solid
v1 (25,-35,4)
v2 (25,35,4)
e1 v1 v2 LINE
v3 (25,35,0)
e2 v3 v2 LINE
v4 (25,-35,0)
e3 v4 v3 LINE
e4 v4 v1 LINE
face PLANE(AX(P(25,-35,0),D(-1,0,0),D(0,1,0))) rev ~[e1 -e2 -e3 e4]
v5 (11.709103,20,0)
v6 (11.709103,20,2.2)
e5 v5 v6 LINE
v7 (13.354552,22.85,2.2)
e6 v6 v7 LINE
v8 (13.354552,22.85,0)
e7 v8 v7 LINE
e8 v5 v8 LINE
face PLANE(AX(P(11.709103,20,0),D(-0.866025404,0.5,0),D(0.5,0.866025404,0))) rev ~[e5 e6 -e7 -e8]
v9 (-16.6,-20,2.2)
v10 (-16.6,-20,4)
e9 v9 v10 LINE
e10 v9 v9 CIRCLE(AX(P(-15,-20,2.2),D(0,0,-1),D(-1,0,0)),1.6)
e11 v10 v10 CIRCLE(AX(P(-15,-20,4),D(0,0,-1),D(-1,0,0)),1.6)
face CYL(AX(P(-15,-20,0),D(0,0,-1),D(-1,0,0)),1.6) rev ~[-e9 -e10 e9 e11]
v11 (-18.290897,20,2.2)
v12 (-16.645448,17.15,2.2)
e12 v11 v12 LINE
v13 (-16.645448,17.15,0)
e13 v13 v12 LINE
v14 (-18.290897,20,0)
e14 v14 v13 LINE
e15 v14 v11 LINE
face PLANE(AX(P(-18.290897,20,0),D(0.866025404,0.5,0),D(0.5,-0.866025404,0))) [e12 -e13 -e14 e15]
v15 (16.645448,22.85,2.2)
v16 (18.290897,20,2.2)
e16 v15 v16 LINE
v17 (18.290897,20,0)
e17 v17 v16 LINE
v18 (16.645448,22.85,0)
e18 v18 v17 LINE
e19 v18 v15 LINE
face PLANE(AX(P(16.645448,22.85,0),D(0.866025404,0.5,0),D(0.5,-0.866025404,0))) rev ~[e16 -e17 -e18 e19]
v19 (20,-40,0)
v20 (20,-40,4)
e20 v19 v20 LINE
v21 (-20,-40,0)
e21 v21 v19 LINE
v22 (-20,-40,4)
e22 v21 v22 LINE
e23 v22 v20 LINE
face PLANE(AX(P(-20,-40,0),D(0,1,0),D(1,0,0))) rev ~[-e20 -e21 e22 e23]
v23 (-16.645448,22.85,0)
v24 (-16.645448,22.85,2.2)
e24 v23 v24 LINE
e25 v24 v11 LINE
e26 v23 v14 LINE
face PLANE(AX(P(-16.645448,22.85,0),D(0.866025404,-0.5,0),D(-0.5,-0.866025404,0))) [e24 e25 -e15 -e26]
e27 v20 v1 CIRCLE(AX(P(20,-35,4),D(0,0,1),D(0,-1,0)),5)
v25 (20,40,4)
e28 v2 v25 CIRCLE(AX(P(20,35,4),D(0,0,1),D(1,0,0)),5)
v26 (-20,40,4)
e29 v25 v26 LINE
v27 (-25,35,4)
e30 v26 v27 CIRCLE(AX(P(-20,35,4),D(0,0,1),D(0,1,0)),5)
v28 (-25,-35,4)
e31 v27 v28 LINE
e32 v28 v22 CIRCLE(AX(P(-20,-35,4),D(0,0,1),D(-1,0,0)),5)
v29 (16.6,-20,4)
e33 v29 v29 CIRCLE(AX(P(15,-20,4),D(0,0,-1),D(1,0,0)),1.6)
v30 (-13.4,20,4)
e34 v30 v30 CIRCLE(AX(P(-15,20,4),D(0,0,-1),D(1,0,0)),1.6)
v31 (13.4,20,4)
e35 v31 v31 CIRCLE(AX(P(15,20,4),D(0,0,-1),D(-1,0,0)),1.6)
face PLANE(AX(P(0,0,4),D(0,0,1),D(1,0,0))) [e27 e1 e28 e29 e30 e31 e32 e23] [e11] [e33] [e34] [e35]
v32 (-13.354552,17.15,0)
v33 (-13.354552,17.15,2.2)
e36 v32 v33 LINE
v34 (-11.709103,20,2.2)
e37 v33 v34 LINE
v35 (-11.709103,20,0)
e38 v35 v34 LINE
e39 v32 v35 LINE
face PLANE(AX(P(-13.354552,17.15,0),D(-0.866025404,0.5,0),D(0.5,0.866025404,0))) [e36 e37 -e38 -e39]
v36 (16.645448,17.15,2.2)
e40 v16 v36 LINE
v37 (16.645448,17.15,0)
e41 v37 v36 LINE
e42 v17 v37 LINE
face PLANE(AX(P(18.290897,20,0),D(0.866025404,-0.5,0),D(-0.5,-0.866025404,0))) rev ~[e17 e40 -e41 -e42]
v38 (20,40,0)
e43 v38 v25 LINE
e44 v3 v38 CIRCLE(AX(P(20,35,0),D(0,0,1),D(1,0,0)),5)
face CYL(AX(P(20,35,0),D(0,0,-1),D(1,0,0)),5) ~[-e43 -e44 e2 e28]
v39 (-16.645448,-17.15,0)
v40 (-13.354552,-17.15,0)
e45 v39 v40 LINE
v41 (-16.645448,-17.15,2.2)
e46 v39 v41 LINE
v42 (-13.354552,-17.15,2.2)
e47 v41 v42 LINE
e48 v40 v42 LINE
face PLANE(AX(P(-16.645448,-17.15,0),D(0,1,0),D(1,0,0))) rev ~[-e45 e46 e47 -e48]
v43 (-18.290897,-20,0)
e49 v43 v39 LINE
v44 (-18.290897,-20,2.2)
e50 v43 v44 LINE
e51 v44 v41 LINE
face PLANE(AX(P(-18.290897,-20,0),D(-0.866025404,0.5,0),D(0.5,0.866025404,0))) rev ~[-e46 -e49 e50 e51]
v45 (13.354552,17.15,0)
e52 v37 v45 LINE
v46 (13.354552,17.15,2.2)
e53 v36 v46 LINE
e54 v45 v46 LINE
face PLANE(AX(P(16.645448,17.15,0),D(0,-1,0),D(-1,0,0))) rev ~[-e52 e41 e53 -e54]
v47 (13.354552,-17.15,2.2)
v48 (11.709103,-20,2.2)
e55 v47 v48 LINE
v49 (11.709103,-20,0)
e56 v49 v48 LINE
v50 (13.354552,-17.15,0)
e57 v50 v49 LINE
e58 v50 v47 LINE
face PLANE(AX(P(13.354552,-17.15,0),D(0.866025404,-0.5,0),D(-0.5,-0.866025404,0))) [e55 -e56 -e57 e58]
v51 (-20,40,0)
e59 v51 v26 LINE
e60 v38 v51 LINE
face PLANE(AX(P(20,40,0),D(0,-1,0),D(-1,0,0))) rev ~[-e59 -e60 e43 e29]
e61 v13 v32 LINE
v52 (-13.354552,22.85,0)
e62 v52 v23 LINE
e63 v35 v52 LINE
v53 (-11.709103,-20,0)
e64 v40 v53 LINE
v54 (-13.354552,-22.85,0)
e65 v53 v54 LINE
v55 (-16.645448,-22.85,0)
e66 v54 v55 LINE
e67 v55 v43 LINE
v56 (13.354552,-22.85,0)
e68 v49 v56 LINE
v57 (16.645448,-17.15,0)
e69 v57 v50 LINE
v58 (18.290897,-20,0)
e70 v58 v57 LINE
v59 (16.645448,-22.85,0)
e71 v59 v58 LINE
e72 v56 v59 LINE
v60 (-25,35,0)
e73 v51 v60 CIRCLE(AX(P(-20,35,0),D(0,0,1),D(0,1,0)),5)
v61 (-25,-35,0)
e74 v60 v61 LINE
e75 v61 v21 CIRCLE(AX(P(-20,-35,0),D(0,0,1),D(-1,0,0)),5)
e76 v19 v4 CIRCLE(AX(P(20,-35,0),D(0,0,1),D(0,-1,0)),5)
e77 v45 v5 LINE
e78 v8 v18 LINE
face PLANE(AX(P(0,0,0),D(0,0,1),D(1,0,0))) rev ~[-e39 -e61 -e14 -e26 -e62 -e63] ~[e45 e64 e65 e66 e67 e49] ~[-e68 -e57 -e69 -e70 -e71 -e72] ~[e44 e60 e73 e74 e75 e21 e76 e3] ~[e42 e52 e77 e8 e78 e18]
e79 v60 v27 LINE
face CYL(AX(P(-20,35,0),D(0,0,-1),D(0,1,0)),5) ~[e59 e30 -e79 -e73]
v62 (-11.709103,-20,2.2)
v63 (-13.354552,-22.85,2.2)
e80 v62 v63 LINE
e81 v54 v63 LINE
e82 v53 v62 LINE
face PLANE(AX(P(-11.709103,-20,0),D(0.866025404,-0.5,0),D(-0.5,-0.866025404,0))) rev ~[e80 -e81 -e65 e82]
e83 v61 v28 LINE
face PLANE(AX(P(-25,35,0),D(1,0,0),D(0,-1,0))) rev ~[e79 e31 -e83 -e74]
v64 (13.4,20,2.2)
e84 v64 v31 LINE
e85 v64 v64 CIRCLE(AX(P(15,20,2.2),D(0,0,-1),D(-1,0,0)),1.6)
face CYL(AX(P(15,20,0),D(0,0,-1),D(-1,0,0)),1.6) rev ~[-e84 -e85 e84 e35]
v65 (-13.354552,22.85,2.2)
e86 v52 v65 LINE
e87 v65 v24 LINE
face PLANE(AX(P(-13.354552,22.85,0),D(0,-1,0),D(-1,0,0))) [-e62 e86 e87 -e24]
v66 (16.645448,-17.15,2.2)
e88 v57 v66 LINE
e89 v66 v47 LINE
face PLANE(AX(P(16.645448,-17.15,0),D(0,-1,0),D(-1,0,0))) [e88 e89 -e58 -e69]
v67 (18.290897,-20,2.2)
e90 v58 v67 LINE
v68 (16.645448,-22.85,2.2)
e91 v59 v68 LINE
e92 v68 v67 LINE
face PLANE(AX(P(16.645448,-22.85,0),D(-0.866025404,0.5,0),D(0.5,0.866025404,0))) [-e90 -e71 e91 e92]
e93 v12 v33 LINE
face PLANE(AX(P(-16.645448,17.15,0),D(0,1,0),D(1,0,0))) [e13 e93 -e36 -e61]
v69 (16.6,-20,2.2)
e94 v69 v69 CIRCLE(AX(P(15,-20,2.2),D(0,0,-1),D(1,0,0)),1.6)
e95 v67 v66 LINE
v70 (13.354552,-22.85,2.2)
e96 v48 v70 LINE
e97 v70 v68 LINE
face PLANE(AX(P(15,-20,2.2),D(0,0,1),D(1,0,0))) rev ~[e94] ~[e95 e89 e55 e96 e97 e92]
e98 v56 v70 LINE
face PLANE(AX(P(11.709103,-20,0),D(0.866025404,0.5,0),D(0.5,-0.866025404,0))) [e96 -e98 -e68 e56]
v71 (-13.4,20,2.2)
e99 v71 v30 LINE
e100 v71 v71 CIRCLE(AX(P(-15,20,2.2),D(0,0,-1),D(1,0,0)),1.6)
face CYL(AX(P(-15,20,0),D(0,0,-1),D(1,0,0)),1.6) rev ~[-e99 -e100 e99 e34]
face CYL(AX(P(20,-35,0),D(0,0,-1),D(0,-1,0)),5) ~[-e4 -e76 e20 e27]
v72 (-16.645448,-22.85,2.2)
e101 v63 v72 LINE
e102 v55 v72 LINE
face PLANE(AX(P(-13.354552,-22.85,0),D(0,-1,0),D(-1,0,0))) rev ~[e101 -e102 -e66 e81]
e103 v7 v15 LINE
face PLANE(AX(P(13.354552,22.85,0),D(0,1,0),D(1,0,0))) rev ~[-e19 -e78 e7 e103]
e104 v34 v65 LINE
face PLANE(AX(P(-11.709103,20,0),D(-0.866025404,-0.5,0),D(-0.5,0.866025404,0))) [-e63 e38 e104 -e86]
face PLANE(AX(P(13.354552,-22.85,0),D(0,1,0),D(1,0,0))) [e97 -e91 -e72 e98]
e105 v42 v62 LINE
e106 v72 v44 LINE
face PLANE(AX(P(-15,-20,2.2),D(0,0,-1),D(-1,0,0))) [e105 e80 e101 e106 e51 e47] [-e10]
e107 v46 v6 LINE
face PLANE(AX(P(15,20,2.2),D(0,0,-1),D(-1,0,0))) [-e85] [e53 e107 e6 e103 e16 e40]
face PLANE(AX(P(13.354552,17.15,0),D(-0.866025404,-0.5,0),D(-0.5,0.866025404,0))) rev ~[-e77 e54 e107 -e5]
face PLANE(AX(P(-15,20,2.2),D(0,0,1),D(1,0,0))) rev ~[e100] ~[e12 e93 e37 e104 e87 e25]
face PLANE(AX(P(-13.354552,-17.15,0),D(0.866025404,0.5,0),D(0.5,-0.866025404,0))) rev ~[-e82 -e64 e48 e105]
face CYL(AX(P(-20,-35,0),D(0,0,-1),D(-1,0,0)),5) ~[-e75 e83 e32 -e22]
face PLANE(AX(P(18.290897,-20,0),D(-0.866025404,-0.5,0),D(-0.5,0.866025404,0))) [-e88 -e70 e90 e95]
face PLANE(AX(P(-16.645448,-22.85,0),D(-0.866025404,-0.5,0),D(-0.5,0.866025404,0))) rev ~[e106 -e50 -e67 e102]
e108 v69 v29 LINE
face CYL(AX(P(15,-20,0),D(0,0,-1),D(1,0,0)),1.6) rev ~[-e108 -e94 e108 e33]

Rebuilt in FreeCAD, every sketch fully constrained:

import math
import FreeCAD as App
import Part
import Sketcher
Q = App.Units.Quantity

doc = App.newDocument("Part")
params = doc.addObject("Spreadsheet::Sheet", "Params")
for row, (alias, value) in enumerate([
    ("sketch1_radius", "5 mm"),
    ("sketch1_width", "40 mm"),
    ("sketch1_height", "70 mm"),
    ("pad1_length", "4 mm"),
    ("sketch2_diameter", "3.2 mm"),
    ("sketch3_diameter", "3.2 mm"),
    ("sketch4_diameter", "3.2 mm"),
    ("sketch5_diameter", "3.2 mm"),
    ("sketch6_diameter", "3.2 mm"),
    ("pocket5_length", "2.2 mm"),
], start=1):
    params.set(f"A{row}", alias)
    params.set(f"B{row}", "=" + value)
    params.setAlias(f"B{row}", alias)

body = doc.addObject("PartDesign::Body", "Body")

# Sketch on XY plane
sketch1 = doc.addObject("Sketcher::SketchObject", "Sketch")
body.addObject(sketch1)
sketch1.AttachmentSupport = (doc.XY_Plane, [""])
sketch1.MapMode = "FlatFace"
sketch1.addGeometry([
    Part.LineSegment(App.Vector(-20, -40, 0), App.Vector(20, -40, 0)),  # 0
    Part.ArcOfCircle(Part.Circle(App.Vector(20, -35, 0), App.Vector(0, 0, 1), 5), math.radians(-90), math.radians(0)),  # 1
    Part.LineSegment(App.Vector(25, -35, 0), App.Vector(25, 35, 0)),  # 2
    Part.ArcOfCircle(Part.Circle(App.Vector(20, 35, 0), App.Vector(0, 0, 1), 5), math.radians(0), math.radians(90)),  # 3
    Part.LineSegment(App.Vector(20, 40, 0), App.Vector(-20, 40, 0)),  # 4
    Part.ArcOfCircle(Part.Circle(App.Vector(-20, 35, 0), App.Vector(0, 0, 1), 5), math.radians(90), math.radians(180)),  # 5
    Part.LineSegment(App.Vector(-25, 35, 0), App.Vector(-25, -35, 0)),  # 6
    Part.ArcOfCircle(Part.Circle(App.Vector(-20, -35, 0), App.Vector(0, 0, 1), 5), math.radians(180), math.radians(270)),  # 7
], False)
sketch1.addConstraint([
    Sketcher.Constraint("Tangent", 0, 2, 1, 1),
    Sketcher.Constraint("Tangent", 1, 2, 2, 1),
    Sketcher.Constraint("Tangent", 2, 2, 3, 1),
    Sketcher.Constraint("Tangent", 3, 2, 4, 1),
    Sketcher.Constraint("Tangent", 4, 2, 5, 1),
    Sketcher.Constraint("Tangent", 5, 2, 6, 1),
    Sketcher.Constraint("Tangent", 6, 2, 7, 1),
    Sketcher.Constraint("Tangent", 7, 2, 0, 1),
    Sketcher.Constraint("Horizontal", 0),
    Sketcher.Constraint("Vertical", 2),
    Sketcher.Constraint("Horizontal", 4),
    Sketcher.Constraint("Vertical", 6),
    Sketcher.Constraint("Equal", 1, 3),
    Sketcher.Constraint("Equal", 3, 5),
    Sketcher.Constraint("Equal", 5, 7),
    Sketcher.Constraint("Symmetric", 1, 3, 5, 3, -1, 1),
    Sketcher.Constraint("Radius", 1, 5.0),
    Sketcher.Constraint("DistanceX", 0, 1, 0, 2, 40.0),
    Sketcher.Constraint("DistanceY", 2, 1, 2, 2, 70.0),
])
sketch1.setExpression("Constraints[16]", "Params.sketch1_radius")
sketch1.setExpression("Constraints[17]", "Params.sketch1_width")
sketch1.setExpression("Constraints[18]", "Params.sketch1_height")
pad1 = doc.addObject("PartDesign::Pad", "Pad")
body.addObject(pad1)
pad1.Profile = sketch1
pad1.setExpression("Length", "Params.pad1_length")

# Sketch on XY plane
sketch2 = doc.addObject("Sketcher::SketchObject", "Sketch001")
body.addObject(sketch2)
sketch2.AttachmentSupport = (doc.XY_Plane, [""])
sketch2.MapMode = "FlatFace"
sketch2.addGeometry(Part.Circle(App.Vector(15, 20, 0), App.Vector(0, 0, 1), 1.6), False)
sketch2.addConstraint([
    Sketcher.Constraint("Diameter", 0, 3.2),
    Sketcher.Constraint("DistanceX", -1, 1, 0, 3, 15.0),
    Sketcher.Constraint("DistanceY", -1, 1, 0, 3, 20.0),
])
sketch2.setExpression("Constraints[0]", "Params.sketch2_diameter")
pocket1 = doc.addObject("PartDesign::Pocket", "Pocket")
body.addObject(pocket1)
pocket1.Profile = sketch2
pocket1.Type = "UpToFirst"
pocket1.Reversed = True

# Sketch on XY plane
sketch3 = doc.addObject("Sketcher::SketchObject", "Sketch002")
body.addObject(sketch3)
sketch3.AttachmentSupport = (doc.XY_Plane, [""])
sketch3.MapMode = "FlatFace"
sketch3.addGeometry(Part.Circle(App.Vector(-15, 20, 0), App.Vector(0, 0, 1), 1.6), False)
sketch3.addConstraint([
    Sketcher.Constraint("Diameter", 0, 3.2),
    Sketcher.Constraint("DistanceX", 0, 3, -1, 1, 15.0),
    Sketcher.Constraint("DistanceY", -1, 1, 0, 3, 20.0),
])
sketch3.setExpression("Constraints[0]", "Params.sketch3_diameter")
pocket2 = doc.addObject("PartDesign::Pocket", "Pocket001")
body.addObject(pocket2)
pocket2.Profile = sketch3
pocket2.Type = "UpToFirst"
pocket2.Reversed = True

# Sketch on XY plane
sketch4 = doc.addObject("Sketcher::SketchObject", "Sketch003")
body.addObject(sketch4)
sketch4.AttachmentSupport = (doc.XY_Plane, [""])
sketch4.MapMode = "FlatFace"
sketch4.addGeometry(Part.Circle(App.Vector(-15, -20, 0), App.Vector(0, 0, 1), 1.6), False)
sketch4.addConstraint([
    Sketcher.Constraint("Diameter", 0, 3.2),
    Sketcher.Constraint("DistanceX", 0, 3, -1, 1, 15.0),
    Sketcher.Constraint("DistanceY", 0, 3, -1, 1, 20.0),
])
sketch4.setExpression("Constraints[0]", "Params.sketch4_diameter")
pocket3 = doc.addObject("PartDesign::Pocket", "Pocket002")
body.addObject(pocket3)
pocket3.Profile = sketch4
pocket3.Type = "UpToFirst"
pocket3.Reversed = True

# Sketch on XY plane
sketch5 = doc.addObject("Sketcher::SketchObject", "Sketch004")
body.addObject(sketch5)
sketch5.AttachmentSupport = (doc.XY_Plane, [""])
sketch5.MapMode = "FlatFace"
sketch5.addGeometry(Part.Circle(App.Vector(15, -20, 0), App.Vector(0, 0, 1), 1.6), False)
sketch5.addConstraint([
    Sketcher.Constraint("Diameter", 0, 3.2),
    Sketcher.Constraint("DistanceX", -1, 1, 0, 3, 15.0),
    Sketcher.Constraint("DistanceY", 0, 3, -1, 1, 20.0),
])
sketch5.setExpression("Constraints[0]", "Params.sketch5_diameter")
pocket4 = doc.addObject("PartDesign::Pocket", "Pocket003")
body.addObject(pocket4)
pocket4.Profile = sketch5
pocket4.Type = "UpToFirst"
pocket4.Reversed = True

# Sketch on XY plane
sketch6 = doc.addObject("Sketcher::SketchObject", "Sketch005")
body.addObject(sketch6)
sketch6.AttachmentSupport = (doc.XY_Plane, [""])
sketch6.MapMode = "FlatFace"
sketch6.addGeometry([
    Part.LineSegment(App.Vector(11.7, 20, 0), App.Vector(13.4, 22.9, 0)),  # 0
    Part.LineSegment(App.Vector(13.4, 22.9, 0), App.Vector(16.6, 22.9, 0)),  # 1
    Part.LineSegment(App.Vector(16.6, 22.9, 0), App.Vector(18.3, 20, 0)),  # 2
    Part.LineSegment(App.Vector(18.3, 20, 0), App.Vector(16.6, 17.1, 0)),  # 3
    Part.LineSegment(App.Vector(16.6, 17.1, 0), App.Vector(13.4, 17.1, 0)),  # 4
    Part.LineSegment(App.Vector(13.4, 17.1, 0), App.Vector(11.7, 20, 0)),  # 5
    Part.Circle(App.Vector(15, 20, 0), App.Vector(0, 0, 1), 1.6),  # 6
    Part.LineSegment(App.Vector(-11.7, 20, 0), App.Vector(-13.4, 17.1, 0)),  # 7
    Part.LineSegment(App.Vector(-13.4, 17.1, 0), App.Vector(-16.6, 17.1, 0)),  # 8
    Part.LineSegment(App.Vector(-16.6, 17.1, 0), App.Vector(-18.3, 20, 0)),  # 9
    Part.LineSegment(App.Vector(-18.3, 20, 0), App.Vector(-16.6, 22.9, 0)),  # 10
    Part.LineSegment(App.Vector(-16.6, 22.9, 0), App.Vector(-13.4, 22.9, 0)),  # 11
    Part.LineSegment(App.Vector(-13.4, 22.9, 0), App.Vector(-11.7, 20, 0)),  # 12
    Part.Circle(App.Vector(-15, 20, 0), App.Vector(0, 0, 1), 1.6),  # 13
    Part.LineSegment(App.Vector(-11.7, -20, 0), App.Vector(-13.4, -22.9, 0)),  # 14
    Part.LineSegment(App.Vector(-13.4, -22.9, 0), App.Vector(-16.6, -22.9, 0)),  # 15
    Part.LineSegment(App.Vector(-16.6, -22.9, 0), App.Vector(-18.3, -20, 0)),  # 16
    Part.LineSegment(App.Vector(-18.3, -20, 0), App.Vector(-16.6, -17.1, 0)),  # 17
    Part.LineSegment(App.Vector(-16.6, -17.1, 0), App.Vector(-13.4, -17.1, 0)),  # 18
    Part.LineSegment(App.Vector(-13.4, -17.1, 0), App.Vector(-11.7, -20, 0)),  # 19
    Part.Circle(App.Vector(-15, -20, 0), App.Vector(0, 0, 1), 1.6),  # 20
    Part.LineSegment(App.Vector(11.7, -20, 0), App.Vector(13.4, -17.1, 0)),  # 21
    Part.LineSegment(App.Vector(13.4, -17.1, 0), App.Vector(16.6, -17.1, 0)),  # 22
    Part.LineSegment(App.Vector(16.6, -17.1, 0), App.Vector(18.3, -20, 0)),  # 23
    Part.LineSegment(App.Vector(18.3, -20, 0), App.Vector(16.6, -22.9, 0)),  # 24
    Part.LineSegment(App.Vector(16.6, -22.9, 0), App.Vector(13.4, -22.9, 0)),  # 25
    Part.LineSegment(App.Vector(13.4, -22.9, 0), App.Vector(11.7, -20, 0)),  # 26
    Part.Circle(App.Vector(15, -20, 0), App.Vector(0, 0, 1), 1.6),  # 27
], False)
sketch6.addConstraint([
    Sketcher.Constraint("Coincident", 0, 2, 1, 1),
    Sketcher.Constraint("Coincident", 1, 2, 2, 1),
    Sketcher.Constraint("Coincident", 2, 2, 3, 1),
    Sketcher.Constraint("Coincident", 3, 2, 4, 1),
    Sketcher.Constraint("Coincident", 4, 2, 5, 1),
    Sketcher.Constraint("Coincident", 5, 2, 0, 1),
    Sketcher.Constraint("Coincident", 7, 2, 8, 1),
    Sketcher.Constraint("Coincident", 8, 2, 9, 1),
    Sketcher.Constraint("Coincident", 9, 2, 10, 1),
    Sketcher.Constraint("Coincident", 10, 2, 11, 1),
    Sketcher.Constraint("Coincident", 11, 2, 12, 1),
    Sketcher.Constraint("Coincident", 12, 2, 7, 1),
    Sketcher.Constraint("Coincident", 14, 2, 15, 1),
    Sketcher.Constraint("Coincident", 15, 2, 16, 1),
    Sketcher.Constraint("Coincident", 16, 2, 17, 1),
    Sketcher.Constraint("Coincident", 17, 2, 18, 1),
    Sketcher.Constraint("Coincident", 18, 2, 19, 1),
    Sketcher.Constraint("Coincident", 19, 2, 14, 1),
    Sketcher.Constraint("Coincident", 21, 2, 22, 1),
    Sketcher.Constraint("Coincident", 22, 2, 23, 1),
    Sketcher.Constraint("Coincident", 23, 2, 24, 1),
    Sketcher.Constraint("Coincident", 24, 2, 25, 1),
    Sketcher.Constraint("Coincident", 25, 2, 26, 1),
    Sketcher.Constraint("Coincident", 26, 2, 21, 1),
    Sketcher.Constraint("Horizontal", 1),
    Sketcher.Constraint("Horizontal", 4),
    Sketcher.Constraint("Horizontal", 8),
    Sketcher.Constraint("Horizontal", 11),
    Sketcher.Constraint("Horizontal", 15),
    Sketcher.Constraint("Horizontal", 18),
    Sketcher.Constraint("Horizontal", 22),
    Sketcher.Constraint("Horizontal", 25),
    Sketcher.Constraint("Equal", 6, 13),
    Sketcher.Constraint("Equal", 13, 20),
    Sketcher.Constraint("Equal", 20, 27),
    Sketcher.Constraint("Symmetric", 6, 3, 20, 3, -1, 1),
    Sketcher.Constraint("Symmetric", 13, 3, 27, 3, -1, 1),
    Sketcher.Constraint("Symmetric", 0, 2, 14, 2, -1, 1),
    Sketcher.Constraint("Symmetric", 2, 2, 16, 2, -1, 1),
    Sketcher.Constraint("Symmetric", 3, 2, 17, 2, -1, 1),
    Sketcher.Constraint("Symmetric", 5, 2, 19, 2, -1, 1),
    Sketcher.Constraint("Symmetric", 7, 2, 21, 2, -1, 1),
    Sketcher.Constraint("Symmetric", 9, 2, 23, 2, -1, 1),
    Sketcher.Constraint("Symmetric", 10, 2, 24, 2, -1, 1),
    Sketcher.Constraint("Symmetric", 12, 2, 26, 2, -1, 1),
    Sketcher.Constraint("Symmetric", 6, 3, 13, 3, -2),
    Sketcher.Constraint("Symmetric", 4, 2, 7, 2, -2),
    Sketcher.Constraint("Symmetric", 2, 2, 9, 2, -2),
    Sketcher.Constraint("Symmetric", 1, 2, 10, 2, -2),
    Sketcher.Constraint("Symmetric", 5, 2, 12, 2, -2),
    Sketcher.Constraint("Parallel", 0, 3),
    Sketcher.Constraint("Parallel", 2, 5),
    Sketcher.Constraint("Parallel", 3, 7),
    Sketcher.Constraint("Parallel", 5, 9),
    Sketcher.Constraint("Parallel", 9, 12),
    Sketcher.Constraint("Parallel", 12, 16),
    Sketcher.Constraint("Parallel", 16, 19),
    Sketcher.Constraint("Parallel", 19, 23),
    Sketcher.Constraint("Parallel", 23, 26),
    Sketcher.Constraint("Horizontal", 13, 3, 2, 2),
    Sketcher.Constraint("Horizontal", 2, 2, 5, 2),
    Sketcher.Constraint("Vertical", 1, 2, 3, 2),
    Sketcher.Constraint("Diameter", 6, 3.2),
    Sketcher.Constraint("Angle", 0, Q("60 deg")),
    Sketcher.Constraint("DistanceX", -1, 1, 6, 3, 15.0),
    Sketcher.Constraint("DistanceY", -1, 1, 6, 3, 20.0),
    Sketcher.Constraint("DistanceX", 8, 2, 4, 2, 30.0),
    Sketcher.Constraint("DistanceY", 3, 2, 1, 2, 5.7),
    Sketcher.Constraint("DistanceX", 1, 1, 1, 2, 3.290897),
])
sketch6.setExpression("Constraints[62]", "Params.sketch6_diameter")
pocket5 = doc.addObject("PartDesign::Pocket", "Pocket004")
body.addObject(pocket5)
pocket5.Profile = sketch6
pocket5.setExpression("Length", "Params.pocket5_length")
pocket5.Reversed = True

doc.recompute()
